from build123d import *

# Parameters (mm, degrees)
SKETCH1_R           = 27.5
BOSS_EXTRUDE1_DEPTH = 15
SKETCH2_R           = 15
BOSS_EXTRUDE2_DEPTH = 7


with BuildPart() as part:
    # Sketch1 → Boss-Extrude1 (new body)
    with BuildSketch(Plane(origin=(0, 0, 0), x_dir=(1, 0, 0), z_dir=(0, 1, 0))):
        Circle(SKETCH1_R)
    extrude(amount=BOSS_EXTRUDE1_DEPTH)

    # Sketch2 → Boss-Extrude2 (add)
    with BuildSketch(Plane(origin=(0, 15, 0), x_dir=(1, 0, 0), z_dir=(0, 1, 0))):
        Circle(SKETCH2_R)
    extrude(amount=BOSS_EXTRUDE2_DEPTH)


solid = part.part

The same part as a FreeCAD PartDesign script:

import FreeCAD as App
import Part
import Sketcher
from FreeCAD import Vector
Q = App.Units.Quantity

doc = App.newDocument("Part")
params = doc.addObject("Spreadsheet::Sheet", "Params")
for row, (alias, value) in enumerate([
    ("sketch1_diameter", "55 mm"),
    ("pad1_length", "15 mm"),
    ("sketch2_diameter", "30 mm"),
    ("pad2_length", "7 mm"),
], start=1):
    params.set(f"A{row}", alias)
    params.set(f"B{row}", "=" + value)
    params.setAlias(f"B{row}", alias)

body = doc.addObject("PartDesign::Body", "Body")

# Sketch on XZ plane
sketch1 = doc.addObject("Sketcher::SketchObject", "Sketch")
body.addObject(sketch1)
sketch1.AttachmentSupport = (doc.XZ_Plane, [""])
sketch1.MapMode = "FlatFace"
sketch1.addGeometry(Part.Circle(Vector(0, 0, 0), Vector(0, 0, 1), 28), False)
sketch1.addConstraint([
    Sketcher.Constraint("Coincident", 0, 3, -1, 1),
    Sketcher.Constraint("Diameter", 0, Q("55 mm")),
])
sketch1.setExpression("Constraints[1]", "Params.sketch1_diameter")
pad1 = doc.addObject("PartDesign::Pad", "Pad")
body.addObject(pad1)
pad1.Profile = sketch1
pad1.setExpression("Length", "Params.pad1_length")
pad1.Reversed = True

# Sketch on XZ plane
sketch2 = doc.addObject("Sketcher::SketchObject", "Sketch001")
body.addObject(sketch2)
sketch2.AttachmentSupport = (doc.XZ_Plane, [""])
sketch2.MapMode = "FlatFace"
sketch2.AttachmentOffset = App.Placement(Vector(0, 0, -15), App.Rotation())
sketch2.addGeometry(Part.Circle(Vector(0, 0, 0), Vector(0, 0, 1), 15), False)
sketch2.addConstraint([
    Sketcher.Constraint("Coincident", 0, 3, -1, 1),
    Sketcher.Constraint("Diameter", 0, Q("30 mm")),
])
sketch2.setExpression("Constraints[1]", "Params.sketch2_diameter")
pad2 = doc.addObject("PartDesign::Pad", "Pad001")
body.addObject(pad2)
pad2.Profile = sketch2
pad2.setExpression("Length", "Params.pad2_length")
pad2.Reversed = True

doc.recompute()
